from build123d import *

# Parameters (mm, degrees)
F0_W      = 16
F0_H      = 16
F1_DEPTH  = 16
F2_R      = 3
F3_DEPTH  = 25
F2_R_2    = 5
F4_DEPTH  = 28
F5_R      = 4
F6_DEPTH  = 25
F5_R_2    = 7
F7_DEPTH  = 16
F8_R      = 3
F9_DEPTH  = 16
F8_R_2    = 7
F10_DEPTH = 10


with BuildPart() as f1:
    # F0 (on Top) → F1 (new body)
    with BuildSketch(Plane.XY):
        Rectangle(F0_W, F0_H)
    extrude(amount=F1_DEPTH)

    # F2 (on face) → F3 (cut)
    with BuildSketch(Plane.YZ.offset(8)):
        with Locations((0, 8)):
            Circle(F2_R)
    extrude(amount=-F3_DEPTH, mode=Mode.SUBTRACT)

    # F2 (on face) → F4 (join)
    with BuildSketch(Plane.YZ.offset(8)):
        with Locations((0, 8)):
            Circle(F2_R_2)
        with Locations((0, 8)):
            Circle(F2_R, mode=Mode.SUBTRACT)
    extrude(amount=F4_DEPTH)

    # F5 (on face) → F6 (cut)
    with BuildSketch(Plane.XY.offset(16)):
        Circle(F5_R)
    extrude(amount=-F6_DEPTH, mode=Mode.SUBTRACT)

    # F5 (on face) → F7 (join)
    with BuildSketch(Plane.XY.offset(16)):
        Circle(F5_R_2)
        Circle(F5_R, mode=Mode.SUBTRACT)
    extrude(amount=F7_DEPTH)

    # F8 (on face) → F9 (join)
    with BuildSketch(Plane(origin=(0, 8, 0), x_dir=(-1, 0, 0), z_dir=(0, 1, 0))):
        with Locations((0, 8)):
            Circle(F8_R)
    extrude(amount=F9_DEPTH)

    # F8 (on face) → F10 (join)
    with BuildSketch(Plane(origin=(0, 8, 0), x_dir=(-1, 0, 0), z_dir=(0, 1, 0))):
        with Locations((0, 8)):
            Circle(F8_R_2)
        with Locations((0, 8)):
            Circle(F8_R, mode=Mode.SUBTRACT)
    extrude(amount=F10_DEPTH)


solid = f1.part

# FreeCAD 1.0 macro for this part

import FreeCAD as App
import Part
import Sketcher

V = App.Vector
Q = App.Units.Quantity


def add_polygon(sketch, points):
    """Adds a closed chain of lines whose ends are joined by coincident constraints."""
    first, n = sketch.GeometryCount, len(points)
    for a, b in zip(points, points[1:] + points[:1]):
        sketch.addGeometry(Part.LineSegment(App.Vector(*a, 0), App.Vector(*b, 0)), False)
    for i in range(n):
        sketch.addConstraint(Sketcher.Constraint("Coincident", first + i, 2, first + (i + 1) % n, 1))

doc = App.newDocument("Part")
body = doc.addObject("PartDesign::Body", "Body")

# Sketch on XY plane
sketch1 = body.newObject("Sketcher::SketchObject", "Sketch")
sketch1.AttachmentSupport = (doc.getObject("XY_Plane"), [""])
sketch1.MapMode = "FlatFace"
add_polygon(sketch1, [(-8, 8), (-8, -8), (8, -8), (8, 8)])  # lines 0-3
sketch1.addConstraint([
    Sketcher.Constraint("Vertical", 0),
    Sketcher.Constraint("Horizontal", 1),
    Sketcher.Constraint("Vertical", 2),
    Sketcher.Constraint("Horizontal", 3),
    Sketcher.Constraint("Symmetric", 0, 2, 2, 2, -1, 1),
    Sketcher.Constraint("Equal", 3, 0),
    Sketcher.Constraint("DistanceX", 1, 1, 1, 2, Q("16 mm")),
])
pad1 = body.newObject("PartDesign::Pad", "Pad")
pad1.Profile = sketch1
pad1.Length = 16

# Sketch on YZ plane
sketch2 = body.newObject("Sketcher::SketchObject", "Sketch001")
sketch2.AttachmentSupport = (doc.getObject("YZ_Plane"), [""])
sketch2.MapMode = "FlatFace"
sketch2.AttachmentOffset = App.Placement(V(0, 0, 8), App.Rotation())
sketch2.addGeometry(Part.Circle(V(0, 8, 0), V(0, 0, 1), 3), False)
sketch2.addConstraint([
    Sketcher.Constraint("PointOnObject", 0, 3, -2),
    Sketcher.Constraint("Diameter", 0, Q("6 mm")),
    Sketcher.Constraint("DistanceY", -1, 1, 0, 3, Q("8 mm")),
])
pocket1 = body.newObject("PartDesign::Pocket", "Pocket")
pocket1.Profile = sketch2
pocket1.Length = 25

# Sketch on YZ plane
sketch3 = body.newObject("Sketcher::SketchObject", "Sketch002")
sketch3.AttachmentSupport = (doc.getObject("YZ_Plane"), [""])
sketch3.MapMode = "FlatFace"
sketch3.AttachmentOffset = App.Placement(V(0, 0, 8), App.Rotation())
sketch3.addGeometry([
    Part.Circle(V(0, 8, 0), V(0, 0, 1), 5),
    Part.Circle(V(0, 8, 0), V(0, 0, 1), 3),
], False)
sketch3.addConstraint([
    Sketcher.Constraint("Coincident", 1, 3, 0, 3),
    Sketcher.Constraint("PointOnObject", 0, 3, -2),
    Sketcher.Constraint("Diameter", 0, Q("10 mm")),
    Sketcher.Constraint("Diameter", 1, Q("6 mm")),
    Sketcher.Constraint("DistanceY", -1, 1, 0, 3, Q("8 mm")),
])
pad2 = body.newObject("PartDesign::Pad", "Pad001")
pad2.Profile = sketch3
pad2.Length = 28

# Sketch on XY plane
sketch4 = body.newObject("Sketcher::SketchObject", "Sketch003")
sketch4.AttachmentSupport = (doc.getObject("XY_Plane"), [""])
sketch4.MapMode = "FlatFace"
sketch4.AttachmentOffset = App.Placement(V(0, 0, 16), App.Rotation())
sketch4.addGeometry(Part.Circle(V(0, 0, 0), V(0, 0, 1), 4), False)
sketch4.addConstraint([
    Sketcher.Constraint("Coincident", 0, 3, -1, 1),
    Sketcher.Constraint("Diameter", 0, Q("8 mm")),
])
pocket2 = body.newObject("PartDesign::Pocket", "Pocket001")
pocket2.Profile = sketch4
pocket2.Length = 25

# Sketch on XY plane
sketch5 = body.newObject("Sketcher::SketchObject", "Sketch004")
sketch5.AttachmentSupport = (doc.getObject("XY_Plane"), [""])
sketch5.MapMode = "FlatFace"
sketch5.AttachmentOffset = App.Placement(V(0, 0, 16), App.Rotation())
sketch5.addGeometry([
    Part.Circle(V(0, 0, 0), V(0, 0, 1), 7),
    Part.Circle(V(0, 0, 0), V(0, 0, 1), 4),
], False)
sketch5.addConstraint([
    Sketcher.Constraint("Coincident", 0, 3, -1, 1),
    Sketcher.Constraint("Coincident", 1, 3, -1, 1),
    Sketcher.Constraint("Diameter", 0, Q("14 mm")),
    Sketcher.Constraint("Diameter", 1, Q("8 mm")),
])
pad3 = body.newObject("PartDesign::Pad", "Pad002")
pad3.Profile = sketch5
pad3.Length = 16

# Sketch on XZ plane
sketch6 = body.newObject("Sketcher::SketchObject", "Sketch005")
sketch6.AttachmentSupport = (doc.getObject("XZ_Plane"), [""])
sketch6.MapMode = "FlatFace"
sketch6.AttachmentOffset = App.Placement(V(0, 0, -8), App.Rotation())
sketch6.addGeometry(Part.Circle(V(0, 8, 0), V(0, 0, 1), 3), False)
sketch6.addConstraint([
    Sketcher.Constraint("PointOnObject", 0, 3, -2),
    Sketcher.Constraint("Diameter", 0, Q("6 mm")),
    Sketcher.Constraint("DistanceY", -1, 1, 0, 3, Q("8 mm")),
])
pad4 = body.newObject("PartDesign::Pad", "Pad003")
pad4.Profile = sketch6
pad4.Length = 16
pad4.Reversed = True

# Sketch on XZ plane
sketch7 = body.newObject("Sketcher::SketchObject", "Sketch006")
sketch7.AttachmentSupport = (doc.getObject("XZ_Plane"), [""])
sketch7.MapMode = "FlatFace"
sketch7.AttachmentOffset = App.Placement(V(0, 0, -8), App.Rotation())
sketch7.addGeometry([
    Part.Circle(V(0, 8, 0), V(0, 0, 1), 7),
    Part.Circle(V(0, 8, 0), V(0, 0, 1), 3),
], False)
sketch7.addConstraint([
    Sketcher.Constraint("Coincident", 1, 3, 0, 3),
    Sketcher.Constraint("PointOnObject", 0, 3, -2),
    Sketcher.Constraint("Diameter", 0, Q("14 mm")),
    Sketcher.Constraint("Diameter", 1, Q("6 mm")),
    Sketcher.Constraint("DistanceY", -1, 1, 0, 3, Q("8 mm")),
])
pad5 = body.newObject("PartDesign::Pad", "Pad004")
pad5.Profile = sketch7
pad5.Length = 10
pad5.Reversed = True

doc.recompute()
